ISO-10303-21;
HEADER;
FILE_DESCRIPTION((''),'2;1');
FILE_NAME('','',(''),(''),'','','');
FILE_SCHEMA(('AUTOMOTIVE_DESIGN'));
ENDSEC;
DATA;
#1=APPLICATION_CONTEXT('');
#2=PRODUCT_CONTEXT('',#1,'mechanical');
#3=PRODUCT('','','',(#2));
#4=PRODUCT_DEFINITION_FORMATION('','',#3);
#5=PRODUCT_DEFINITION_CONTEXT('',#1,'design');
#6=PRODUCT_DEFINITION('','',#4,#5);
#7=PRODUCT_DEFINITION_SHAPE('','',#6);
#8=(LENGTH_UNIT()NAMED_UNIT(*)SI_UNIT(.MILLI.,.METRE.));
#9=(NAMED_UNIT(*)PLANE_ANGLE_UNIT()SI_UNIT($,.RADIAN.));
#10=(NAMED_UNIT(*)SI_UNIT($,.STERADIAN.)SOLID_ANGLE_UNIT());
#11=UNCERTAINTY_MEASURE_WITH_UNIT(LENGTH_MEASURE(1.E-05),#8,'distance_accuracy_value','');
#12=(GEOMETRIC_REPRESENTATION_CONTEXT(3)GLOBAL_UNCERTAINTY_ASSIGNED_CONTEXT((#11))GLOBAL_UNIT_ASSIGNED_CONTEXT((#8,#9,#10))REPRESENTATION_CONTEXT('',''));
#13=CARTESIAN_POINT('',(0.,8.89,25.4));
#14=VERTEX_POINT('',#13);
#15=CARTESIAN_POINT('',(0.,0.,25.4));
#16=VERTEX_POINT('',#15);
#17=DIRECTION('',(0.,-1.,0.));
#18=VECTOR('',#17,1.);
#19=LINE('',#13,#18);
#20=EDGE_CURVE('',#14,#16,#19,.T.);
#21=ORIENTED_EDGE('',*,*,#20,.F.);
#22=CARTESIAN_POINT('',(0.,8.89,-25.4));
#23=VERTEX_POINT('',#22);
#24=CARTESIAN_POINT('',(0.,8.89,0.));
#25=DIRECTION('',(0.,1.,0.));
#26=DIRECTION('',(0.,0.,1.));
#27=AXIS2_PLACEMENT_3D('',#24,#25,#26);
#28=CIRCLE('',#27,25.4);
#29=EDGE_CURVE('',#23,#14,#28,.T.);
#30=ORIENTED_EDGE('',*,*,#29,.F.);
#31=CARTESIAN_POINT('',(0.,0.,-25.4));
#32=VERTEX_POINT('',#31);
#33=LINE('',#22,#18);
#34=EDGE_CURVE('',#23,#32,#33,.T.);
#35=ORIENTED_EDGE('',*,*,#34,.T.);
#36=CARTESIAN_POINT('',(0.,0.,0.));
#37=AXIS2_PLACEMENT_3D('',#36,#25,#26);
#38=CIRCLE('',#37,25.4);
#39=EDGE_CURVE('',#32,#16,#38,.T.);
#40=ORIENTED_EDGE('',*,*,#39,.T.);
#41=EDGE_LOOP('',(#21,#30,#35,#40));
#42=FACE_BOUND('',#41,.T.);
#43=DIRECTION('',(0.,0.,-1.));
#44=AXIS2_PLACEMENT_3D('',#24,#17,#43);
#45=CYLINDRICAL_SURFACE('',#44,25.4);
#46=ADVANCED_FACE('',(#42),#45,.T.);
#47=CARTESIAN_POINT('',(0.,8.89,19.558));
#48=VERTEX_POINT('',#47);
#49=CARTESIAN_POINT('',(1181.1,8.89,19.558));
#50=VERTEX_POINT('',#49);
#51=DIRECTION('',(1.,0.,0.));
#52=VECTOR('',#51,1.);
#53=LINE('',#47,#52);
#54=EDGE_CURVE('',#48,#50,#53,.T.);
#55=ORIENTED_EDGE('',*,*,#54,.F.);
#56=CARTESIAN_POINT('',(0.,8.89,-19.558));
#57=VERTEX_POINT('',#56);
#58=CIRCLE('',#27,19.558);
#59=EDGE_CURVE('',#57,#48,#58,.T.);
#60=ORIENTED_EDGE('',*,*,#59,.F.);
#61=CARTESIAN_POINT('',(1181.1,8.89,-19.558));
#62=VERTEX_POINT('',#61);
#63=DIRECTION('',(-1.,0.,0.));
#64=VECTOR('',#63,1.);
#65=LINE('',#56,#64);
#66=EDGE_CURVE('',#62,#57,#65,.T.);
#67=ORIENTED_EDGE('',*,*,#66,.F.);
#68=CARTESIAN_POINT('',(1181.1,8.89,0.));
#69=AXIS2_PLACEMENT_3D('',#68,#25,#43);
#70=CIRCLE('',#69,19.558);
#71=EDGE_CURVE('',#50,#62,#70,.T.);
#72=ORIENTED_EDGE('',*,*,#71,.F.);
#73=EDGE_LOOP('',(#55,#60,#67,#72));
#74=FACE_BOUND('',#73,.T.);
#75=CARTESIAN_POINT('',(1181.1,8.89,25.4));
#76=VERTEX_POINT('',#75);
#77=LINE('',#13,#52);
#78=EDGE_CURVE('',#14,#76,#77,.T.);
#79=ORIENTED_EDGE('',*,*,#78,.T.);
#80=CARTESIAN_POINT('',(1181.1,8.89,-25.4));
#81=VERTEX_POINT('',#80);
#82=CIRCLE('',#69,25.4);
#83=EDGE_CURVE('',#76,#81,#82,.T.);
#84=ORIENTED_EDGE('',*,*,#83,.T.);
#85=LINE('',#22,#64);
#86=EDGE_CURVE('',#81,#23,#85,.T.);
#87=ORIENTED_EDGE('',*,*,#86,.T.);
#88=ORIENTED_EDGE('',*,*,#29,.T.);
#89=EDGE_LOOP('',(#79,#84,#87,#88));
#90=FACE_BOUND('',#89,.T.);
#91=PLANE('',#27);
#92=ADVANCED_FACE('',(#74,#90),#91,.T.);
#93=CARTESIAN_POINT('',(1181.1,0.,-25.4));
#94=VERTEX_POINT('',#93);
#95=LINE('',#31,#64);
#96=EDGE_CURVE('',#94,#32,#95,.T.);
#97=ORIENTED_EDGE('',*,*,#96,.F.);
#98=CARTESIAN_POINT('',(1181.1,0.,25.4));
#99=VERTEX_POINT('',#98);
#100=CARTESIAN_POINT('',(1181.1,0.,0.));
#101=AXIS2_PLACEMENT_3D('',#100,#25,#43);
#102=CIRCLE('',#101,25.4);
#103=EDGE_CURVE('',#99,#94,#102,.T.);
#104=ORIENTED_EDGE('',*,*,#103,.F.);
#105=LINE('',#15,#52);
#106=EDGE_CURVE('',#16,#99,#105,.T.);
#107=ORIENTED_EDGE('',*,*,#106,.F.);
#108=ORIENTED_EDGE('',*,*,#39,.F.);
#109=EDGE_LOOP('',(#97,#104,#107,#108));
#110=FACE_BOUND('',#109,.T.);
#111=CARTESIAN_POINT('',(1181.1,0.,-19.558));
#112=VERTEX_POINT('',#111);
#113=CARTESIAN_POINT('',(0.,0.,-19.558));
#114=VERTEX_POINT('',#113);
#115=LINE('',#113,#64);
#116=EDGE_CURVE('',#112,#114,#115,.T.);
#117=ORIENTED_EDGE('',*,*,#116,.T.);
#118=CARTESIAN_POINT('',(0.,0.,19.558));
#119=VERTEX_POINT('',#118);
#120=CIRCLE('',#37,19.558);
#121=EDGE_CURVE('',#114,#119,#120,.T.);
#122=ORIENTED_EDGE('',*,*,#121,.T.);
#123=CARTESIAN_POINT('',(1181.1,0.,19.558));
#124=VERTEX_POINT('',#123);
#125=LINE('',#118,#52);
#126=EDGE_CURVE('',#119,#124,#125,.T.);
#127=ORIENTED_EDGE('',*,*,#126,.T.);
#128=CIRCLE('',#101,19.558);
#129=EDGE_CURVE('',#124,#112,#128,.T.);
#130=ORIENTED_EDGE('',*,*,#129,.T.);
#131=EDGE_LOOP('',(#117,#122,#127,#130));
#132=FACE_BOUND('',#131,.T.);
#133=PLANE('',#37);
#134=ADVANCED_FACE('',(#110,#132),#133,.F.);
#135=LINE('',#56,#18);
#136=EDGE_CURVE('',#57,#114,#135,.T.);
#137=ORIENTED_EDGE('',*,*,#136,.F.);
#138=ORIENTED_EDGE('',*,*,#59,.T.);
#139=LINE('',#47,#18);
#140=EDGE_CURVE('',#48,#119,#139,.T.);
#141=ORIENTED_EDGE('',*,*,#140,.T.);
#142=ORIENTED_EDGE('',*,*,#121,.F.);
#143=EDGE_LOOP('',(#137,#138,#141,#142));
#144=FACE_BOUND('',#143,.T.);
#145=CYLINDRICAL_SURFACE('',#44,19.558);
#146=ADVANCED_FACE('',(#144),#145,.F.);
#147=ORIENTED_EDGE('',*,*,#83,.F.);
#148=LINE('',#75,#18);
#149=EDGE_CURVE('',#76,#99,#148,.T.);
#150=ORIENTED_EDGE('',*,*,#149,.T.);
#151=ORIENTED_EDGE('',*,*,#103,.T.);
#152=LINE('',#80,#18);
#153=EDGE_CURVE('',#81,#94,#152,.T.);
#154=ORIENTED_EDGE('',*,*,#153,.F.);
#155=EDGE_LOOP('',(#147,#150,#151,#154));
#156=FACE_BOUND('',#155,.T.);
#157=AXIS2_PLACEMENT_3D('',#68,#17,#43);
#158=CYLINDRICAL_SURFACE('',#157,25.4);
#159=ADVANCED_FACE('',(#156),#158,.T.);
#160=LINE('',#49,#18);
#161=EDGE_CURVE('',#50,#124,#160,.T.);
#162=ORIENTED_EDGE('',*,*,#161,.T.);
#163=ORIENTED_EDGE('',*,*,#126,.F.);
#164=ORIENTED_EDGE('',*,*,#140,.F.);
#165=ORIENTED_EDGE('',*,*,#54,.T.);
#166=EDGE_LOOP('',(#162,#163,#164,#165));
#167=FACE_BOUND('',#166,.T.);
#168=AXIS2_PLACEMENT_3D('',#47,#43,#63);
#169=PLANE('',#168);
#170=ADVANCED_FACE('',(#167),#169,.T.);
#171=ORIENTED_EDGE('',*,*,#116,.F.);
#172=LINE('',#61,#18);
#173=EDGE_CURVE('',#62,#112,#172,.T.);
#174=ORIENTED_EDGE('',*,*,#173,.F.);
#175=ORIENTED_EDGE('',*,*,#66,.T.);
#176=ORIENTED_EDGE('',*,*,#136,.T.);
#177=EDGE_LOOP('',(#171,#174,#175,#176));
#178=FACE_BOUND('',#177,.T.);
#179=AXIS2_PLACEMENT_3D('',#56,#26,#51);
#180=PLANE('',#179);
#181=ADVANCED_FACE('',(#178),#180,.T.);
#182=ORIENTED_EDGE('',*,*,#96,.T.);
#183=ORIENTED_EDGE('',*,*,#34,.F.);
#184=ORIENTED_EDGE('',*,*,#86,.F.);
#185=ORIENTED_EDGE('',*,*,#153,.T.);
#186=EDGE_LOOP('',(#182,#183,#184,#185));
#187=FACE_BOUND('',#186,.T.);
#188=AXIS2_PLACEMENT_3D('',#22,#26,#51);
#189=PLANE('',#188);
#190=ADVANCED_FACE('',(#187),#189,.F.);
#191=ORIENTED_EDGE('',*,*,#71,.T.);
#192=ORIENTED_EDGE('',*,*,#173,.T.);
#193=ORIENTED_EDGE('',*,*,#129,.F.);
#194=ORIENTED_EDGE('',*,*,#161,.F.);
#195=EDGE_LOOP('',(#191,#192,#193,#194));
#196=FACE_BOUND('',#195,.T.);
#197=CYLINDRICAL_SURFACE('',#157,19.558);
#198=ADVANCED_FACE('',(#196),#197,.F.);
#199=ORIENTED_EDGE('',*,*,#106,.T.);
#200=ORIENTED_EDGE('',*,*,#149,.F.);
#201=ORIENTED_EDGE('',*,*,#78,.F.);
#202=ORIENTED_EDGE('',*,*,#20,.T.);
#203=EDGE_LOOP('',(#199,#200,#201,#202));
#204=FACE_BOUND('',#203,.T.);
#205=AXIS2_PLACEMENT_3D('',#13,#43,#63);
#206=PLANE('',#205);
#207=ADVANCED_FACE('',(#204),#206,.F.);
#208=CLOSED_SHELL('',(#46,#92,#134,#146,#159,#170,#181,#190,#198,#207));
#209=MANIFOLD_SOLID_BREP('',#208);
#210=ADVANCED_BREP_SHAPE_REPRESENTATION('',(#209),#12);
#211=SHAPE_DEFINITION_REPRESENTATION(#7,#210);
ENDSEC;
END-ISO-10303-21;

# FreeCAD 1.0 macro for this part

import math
import FreeCAD as App
import Part
import Sketcher

V = App.Vector
Q = App.Units.Quantity

doc = App.newDocument("Part")
body = doc.addObject("PartDesign::Body", "Body")

# Sketch on XZ plane
sketch1 = body.newObject("Sketcher::SketchObject", "Sketch")
sketch1.AttachmentSupport = (doc.getObject("XZ_Plane"), [""])
sketch1.MapMode = "FlatFace"
sketch1.addGeometry([
    Part.LineSegment(V(1181, -25, 0), V(0, -25, 0)),  # 0
    Part.ArcOfCircle(Part.Circle(V(0, 0, 0), V(0, 0, 1), 25), math.radians(90), math.radians(270)),  # 1
    Part.LineSegment(V(0, 25, 0), V(1181, 25, 0)),  # 2
    Part.ArcOfCircle(Part.Circle(V(1181, 0, 0), V(0, 0, 1), 25), math.radians(-90), math.radians(90)),  # 3
    Part.LineSegment(V(0, -20, 0), V(1181, -20, 0)),  # 4
    Part.ArcOfCircle(Part.Circle(V(1181, 0, 0), V(0, 0, 1), 20), math.radians(-90), math.radians(90)),  # 5
    Part.LineSegment(V(1181, 20, 0), V(0, 20, 0)),  # 6
    Part.ArcOfCircle(Part.Circle(V(0, 0, 0), V(0, 0, 1), 20), math.radians(90), math.radians(270)),  # 7
], False)
sketch1.addConstraint([
    Sketcher.Constraint("Tangent", 0, 2, 1, 2),
    Sketcher.Constraint("Tangent", 1, 1, 2, 1),
    Sketcher.Constraint("Tangent", 2, 2, 3, 2),
    Sketcher.Constraint("Tangent", 3, 1, 0, 1),
    Sketcher.Constraint("Tangent", 4, 2, 5, 1),
    Sketcher.Constraint("Tangent", 5, 2, 6, 1),
    Sketcher.Constraint("Tangent", 6, 2, 7, 1),
    Sketcher.Constraint("Tangent", 7, 2, 4, 1),
    Sketcher.Constraint("Horizontal", 0),
    Sketcher.Constraint("Horizontal", 2),
    Sketcher.Constraint("Horizontal", 4),
    Sketcher.Constraint("Horizontal", 6),
    Sketcher.Constraint("Coincident", 1, 3, -1, 1),
    Sketcher.Constraint("Coincident", 7, 3, -1, 1),
    Sketcher.Constraint("Vertical", 5, 3, 2, 2),
    Sketcher.Constraint("Radius", 1, Q("1 in")),
    Sketcher.Constraint("Radius", 5, Q("0.77 in")),
    Sketcher.Constraint("DistanceX", 0, 2, 0, 1, Q("46.5 in")),
])
pad1 = body.newObject("PartDesign::Pad", "Pad")
pad1.Profile = sketch1
pad1.Length = Q("0.35 in")
pad1.Reversed = True

doc.recompute()
